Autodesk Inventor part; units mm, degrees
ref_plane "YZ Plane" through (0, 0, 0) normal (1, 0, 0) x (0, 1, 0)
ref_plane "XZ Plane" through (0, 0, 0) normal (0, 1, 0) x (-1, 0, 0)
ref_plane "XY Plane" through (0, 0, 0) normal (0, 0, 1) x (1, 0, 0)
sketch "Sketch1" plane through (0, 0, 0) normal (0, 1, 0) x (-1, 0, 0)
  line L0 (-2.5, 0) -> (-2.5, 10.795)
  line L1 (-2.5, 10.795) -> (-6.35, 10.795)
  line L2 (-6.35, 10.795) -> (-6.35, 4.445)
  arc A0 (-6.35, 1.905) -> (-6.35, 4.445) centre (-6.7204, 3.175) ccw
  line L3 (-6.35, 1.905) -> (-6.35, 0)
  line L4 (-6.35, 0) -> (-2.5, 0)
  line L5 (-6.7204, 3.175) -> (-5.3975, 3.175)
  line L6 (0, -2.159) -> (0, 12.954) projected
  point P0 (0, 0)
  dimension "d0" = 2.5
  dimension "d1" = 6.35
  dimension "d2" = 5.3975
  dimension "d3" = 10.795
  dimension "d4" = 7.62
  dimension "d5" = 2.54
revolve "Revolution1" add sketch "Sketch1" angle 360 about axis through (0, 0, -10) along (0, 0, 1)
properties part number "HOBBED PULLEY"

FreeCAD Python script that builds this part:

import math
import FreeCAD as App
import Part
import Sketcher
from FreeCAD import Vector
Q = App.Units.Quantity

doc = App.newDocument("Part")
body = doc.addObject("PartDesign::Body", "Body")

# Sketch on XZ plane
sketch1 = doc.addObject("Sketcher::SketchObject", "Sketch")
body.addObject(sketch1)
sketch1.AttachmentSupport = (doc.XZ_Plane, [""])
sketch1.MapMode = "FlatFace"
sketch1.addGeometry(Part.LineSegment(Vector(6.3, 0, 0), Vector(2.5, 0, 0)), False)
sketch1.addGeometry(Part.LineSegment(Vector(2.5, 0, 0), Vector(2.5, 10.8, 0)), False)
sketch1.addGeometry(Part.LineSegment(Vector(2.5, 10.8, 0), Vector(6.3, 10.8, 0)), False)
sketch1.addGeometry(Part.LineSegment(Vector(6.3, 10.8, 0), Vector(6.3, 4.4, 0)), False)
sketch1.addGeometry(Part.ArcOfCircle(Part.Circle(Vector(6.7, 3.2, 0), Vector(0, 0, 1), 1.3), math.radians(106), math.radians(254)), False)
sketch1.addGeometry(Part.LineSegment(Vector(6.3, 1.9, 0), Vector(6.3, 0, 0)), False)
sketch1.addConstraint(Sketcher.Constraint("Coincident", 0, 2, 1, 1))
sketch1.addConstraint(Sketcher.Constraint("Coincident", 1, 2, 2, 1))
sketch1.addConstraint(Sketcher.Constraint("Coincident", 2, 2, 3, 1))
sketch1.addConstraint(Sketcher.Constraint("Coincident", 3, 2, 4, 1))
sketch1.addConstraint(Sketcher.Constraint("Coincident", 4, 2, 5, 1))
sketch1.addConstraint(Sketcher.Constraint("Coincident", 5, 2, 0, 1))
sketch1.addConstraint(Sketcher.Constraint("Horizontal", 0))
sketch1.addConstraint(Sketcher.Constraint("Vertical", 1))
sketch1.addConstraint(Sketcher.Constraint("Horizontal", 2))
sketch1.addConstraint(Sketcher.Constraint("Vertical", 3))
sketch1.addConstraint(Sketcher.Constraint("Vertical", 5))
sketch1.addConstraint(Sketcher.Constraint("PointOnObject", 0, 2, -1))
sketch1.addConstraint(Sketcher.Constraint("Vertical", 3, 2, 4, 2))
sketch1.addConstraint(Sketcher.Constraint("DistanceY", 3, 2, 3, 1, Q("0.25 in")))
sketch1.addConstraint(Sketcher.Constraint("DistanceY", 4, 3, 1, 2, Q("0.3 in")))
sketch1.addConstraint(Sketcher.Constraint("DistanceY", 1, 1, 1, 2, Q("0.425 in")))
sketch1.addConstraint(Sketcher.Constraint("DistanceX", -1, 1, 2, 2, Q("0.25 in")))
sketch1.addConstraint(Sketcher.Constraint("DistanceX", -1, 1, 0, 2, 2.5))
sketch1.addConstraint(Sketcher.Constraint("Radius", 4, 1.323))
revolution = doc.addObject("PartDesign::Revolution", "Revolution")
body.addObject(revolution)
revolution.Profile = sketch1
revolution.ReferenceAxis = (sketch1, ["V_Axis"])
revolution.Angle = 360

doc.recompute()
